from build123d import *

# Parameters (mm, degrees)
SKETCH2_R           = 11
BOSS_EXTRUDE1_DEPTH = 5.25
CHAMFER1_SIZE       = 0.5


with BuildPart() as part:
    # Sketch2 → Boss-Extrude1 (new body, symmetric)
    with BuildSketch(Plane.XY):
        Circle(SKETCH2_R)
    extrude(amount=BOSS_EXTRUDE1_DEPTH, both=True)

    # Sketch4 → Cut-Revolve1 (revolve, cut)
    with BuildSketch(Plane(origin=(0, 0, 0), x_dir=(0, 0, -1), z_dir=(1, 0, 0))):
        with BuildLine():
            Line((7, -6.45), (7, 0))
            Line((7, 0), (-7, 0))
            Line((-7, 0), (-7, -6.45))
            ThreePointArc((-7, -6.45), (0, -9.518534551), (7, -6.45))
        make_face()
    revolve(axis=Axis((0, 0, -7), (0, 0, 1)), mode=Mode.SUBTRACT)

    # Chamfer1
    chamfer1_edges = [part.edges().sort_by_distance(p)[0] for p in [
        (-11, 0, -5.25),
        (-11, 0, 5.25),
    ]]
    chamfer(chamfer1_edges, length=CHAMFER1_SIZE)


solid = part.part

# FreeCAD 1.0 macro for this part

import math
import FreeCAD as App
import Part
import Sketcher
Q = App.Units.Quantity


def edges_at(feature, points):
    """Names of the edges that pass closest to the given points."""
    edges = feature.Shape.Edges
    near = lambda p: min(range(len(edges)), key=lambda i: edges[i].distToShape(Part.Vertex(*p))[0])
    return sorted({f"Edge{near(p) + 1}" for p in points})

doc = App.newDocument("Part")
body = doc.addObject("PartDesign::Body", "Body")

# Sketch on XY plane
sketch1 = doc.addObject("Sketcher::SketchObject", "Sketch")
body.addObject(sketch1)
sketch1.AttachmentSupport = (doc.XY_Plane, [""])
sketch1.MapMode = "FlatFace"
sketch1.addGeometry(Part.Circle(App.Vector(0, 0, 0), App.Vector(0, 0, 1), 11), False)
sketch1.addConstraint([
    Sketcher.Constraint("Coincident", 0, 3, -1, 1),
    Sketcher.Constraint("Diameter", 0, Q("22 mm")),
])
pad1 = doc.addObject("PartDesign::Pad", "Pad")
body.addObject(pad1)
pad1.Profile = sketch1
pad1.Length = 10.5
pad1.Midplane = True

# Sketch on YZ plane
sketch2 = doc.addObject("Sketcher::SketchObject", "Sketch001")
body.addObject(sketch2)
sketch2.AttachmentSupport = (doc.YZ_Plane, [""])
sketch2.MapMode = "FlatFace"
sketch2.addGeometry([
    Part.LineSegment(App.Vector(-6.45, -7, 0), App.Vector(0, -7, 0)),
    Part.LineSegment(App.Vector(0, -7, 0), App.Vector(0, 7, 0)),
    Part.LineSegment(App.Vector(0, 7, 0), App.Vector(-6.45, 7, 0)),
    Part.ArcOfCircle(Part.Circle(App.Vector(0, 0, 0), App.Vector(0, 0, 1), 9.518535), math.radians(132.658355), math.radians(227.341645)),
], False)
sketch2.addConstraint([
    Sketcher.Constraint("Coincident", 0, 2, 1, 1),
    Sketcher.Constraint("Coincident", 1, 2, 2, 1),
    Sketcher.Constraint("Coincident", 2, 2, 3, 1),
    Sketcher.Constraint("Coincident", 3, 2, 0, 1),
    Sketcher.Constraint("Horizontal", 0),
    Sketcher.Constraint("Vertical", 1),
    Sketcher.Constraint("Horizontal", 2),
    Sketcher.Constraint("Coincident", 3, 3, -1, 1),
    Sketcher.Constraint("Symmetric", 0, 2, 1, 2, -1, 1),
    Sketcher.Constraint("DistanceY", 1, 1, 1, 2, Q("14 mm")),
    Sketcher.Constraint("DistanceX", 0, 1, 0, 2, Q("6.45 mm")),
])
groove = doc.addObject("PartDesign::Groove", "Groove")
body.addObject(groove)
groove.Profile = sketch2
groove.ReferenceAxis = (sketch2, ["V_Axis"])
groove.Angle = 360
doc.recompute()

chamfer = doc.addObject("PartDesign::Chamfer", "Chamfer")
body.addObject(chamfer)
chamfer.Base = (groove, edges_at(groove, [(-11, 0, -5.25), (-11, 0, 5.25)]))
chamfer.Size = 0.5

doc.recompute()
